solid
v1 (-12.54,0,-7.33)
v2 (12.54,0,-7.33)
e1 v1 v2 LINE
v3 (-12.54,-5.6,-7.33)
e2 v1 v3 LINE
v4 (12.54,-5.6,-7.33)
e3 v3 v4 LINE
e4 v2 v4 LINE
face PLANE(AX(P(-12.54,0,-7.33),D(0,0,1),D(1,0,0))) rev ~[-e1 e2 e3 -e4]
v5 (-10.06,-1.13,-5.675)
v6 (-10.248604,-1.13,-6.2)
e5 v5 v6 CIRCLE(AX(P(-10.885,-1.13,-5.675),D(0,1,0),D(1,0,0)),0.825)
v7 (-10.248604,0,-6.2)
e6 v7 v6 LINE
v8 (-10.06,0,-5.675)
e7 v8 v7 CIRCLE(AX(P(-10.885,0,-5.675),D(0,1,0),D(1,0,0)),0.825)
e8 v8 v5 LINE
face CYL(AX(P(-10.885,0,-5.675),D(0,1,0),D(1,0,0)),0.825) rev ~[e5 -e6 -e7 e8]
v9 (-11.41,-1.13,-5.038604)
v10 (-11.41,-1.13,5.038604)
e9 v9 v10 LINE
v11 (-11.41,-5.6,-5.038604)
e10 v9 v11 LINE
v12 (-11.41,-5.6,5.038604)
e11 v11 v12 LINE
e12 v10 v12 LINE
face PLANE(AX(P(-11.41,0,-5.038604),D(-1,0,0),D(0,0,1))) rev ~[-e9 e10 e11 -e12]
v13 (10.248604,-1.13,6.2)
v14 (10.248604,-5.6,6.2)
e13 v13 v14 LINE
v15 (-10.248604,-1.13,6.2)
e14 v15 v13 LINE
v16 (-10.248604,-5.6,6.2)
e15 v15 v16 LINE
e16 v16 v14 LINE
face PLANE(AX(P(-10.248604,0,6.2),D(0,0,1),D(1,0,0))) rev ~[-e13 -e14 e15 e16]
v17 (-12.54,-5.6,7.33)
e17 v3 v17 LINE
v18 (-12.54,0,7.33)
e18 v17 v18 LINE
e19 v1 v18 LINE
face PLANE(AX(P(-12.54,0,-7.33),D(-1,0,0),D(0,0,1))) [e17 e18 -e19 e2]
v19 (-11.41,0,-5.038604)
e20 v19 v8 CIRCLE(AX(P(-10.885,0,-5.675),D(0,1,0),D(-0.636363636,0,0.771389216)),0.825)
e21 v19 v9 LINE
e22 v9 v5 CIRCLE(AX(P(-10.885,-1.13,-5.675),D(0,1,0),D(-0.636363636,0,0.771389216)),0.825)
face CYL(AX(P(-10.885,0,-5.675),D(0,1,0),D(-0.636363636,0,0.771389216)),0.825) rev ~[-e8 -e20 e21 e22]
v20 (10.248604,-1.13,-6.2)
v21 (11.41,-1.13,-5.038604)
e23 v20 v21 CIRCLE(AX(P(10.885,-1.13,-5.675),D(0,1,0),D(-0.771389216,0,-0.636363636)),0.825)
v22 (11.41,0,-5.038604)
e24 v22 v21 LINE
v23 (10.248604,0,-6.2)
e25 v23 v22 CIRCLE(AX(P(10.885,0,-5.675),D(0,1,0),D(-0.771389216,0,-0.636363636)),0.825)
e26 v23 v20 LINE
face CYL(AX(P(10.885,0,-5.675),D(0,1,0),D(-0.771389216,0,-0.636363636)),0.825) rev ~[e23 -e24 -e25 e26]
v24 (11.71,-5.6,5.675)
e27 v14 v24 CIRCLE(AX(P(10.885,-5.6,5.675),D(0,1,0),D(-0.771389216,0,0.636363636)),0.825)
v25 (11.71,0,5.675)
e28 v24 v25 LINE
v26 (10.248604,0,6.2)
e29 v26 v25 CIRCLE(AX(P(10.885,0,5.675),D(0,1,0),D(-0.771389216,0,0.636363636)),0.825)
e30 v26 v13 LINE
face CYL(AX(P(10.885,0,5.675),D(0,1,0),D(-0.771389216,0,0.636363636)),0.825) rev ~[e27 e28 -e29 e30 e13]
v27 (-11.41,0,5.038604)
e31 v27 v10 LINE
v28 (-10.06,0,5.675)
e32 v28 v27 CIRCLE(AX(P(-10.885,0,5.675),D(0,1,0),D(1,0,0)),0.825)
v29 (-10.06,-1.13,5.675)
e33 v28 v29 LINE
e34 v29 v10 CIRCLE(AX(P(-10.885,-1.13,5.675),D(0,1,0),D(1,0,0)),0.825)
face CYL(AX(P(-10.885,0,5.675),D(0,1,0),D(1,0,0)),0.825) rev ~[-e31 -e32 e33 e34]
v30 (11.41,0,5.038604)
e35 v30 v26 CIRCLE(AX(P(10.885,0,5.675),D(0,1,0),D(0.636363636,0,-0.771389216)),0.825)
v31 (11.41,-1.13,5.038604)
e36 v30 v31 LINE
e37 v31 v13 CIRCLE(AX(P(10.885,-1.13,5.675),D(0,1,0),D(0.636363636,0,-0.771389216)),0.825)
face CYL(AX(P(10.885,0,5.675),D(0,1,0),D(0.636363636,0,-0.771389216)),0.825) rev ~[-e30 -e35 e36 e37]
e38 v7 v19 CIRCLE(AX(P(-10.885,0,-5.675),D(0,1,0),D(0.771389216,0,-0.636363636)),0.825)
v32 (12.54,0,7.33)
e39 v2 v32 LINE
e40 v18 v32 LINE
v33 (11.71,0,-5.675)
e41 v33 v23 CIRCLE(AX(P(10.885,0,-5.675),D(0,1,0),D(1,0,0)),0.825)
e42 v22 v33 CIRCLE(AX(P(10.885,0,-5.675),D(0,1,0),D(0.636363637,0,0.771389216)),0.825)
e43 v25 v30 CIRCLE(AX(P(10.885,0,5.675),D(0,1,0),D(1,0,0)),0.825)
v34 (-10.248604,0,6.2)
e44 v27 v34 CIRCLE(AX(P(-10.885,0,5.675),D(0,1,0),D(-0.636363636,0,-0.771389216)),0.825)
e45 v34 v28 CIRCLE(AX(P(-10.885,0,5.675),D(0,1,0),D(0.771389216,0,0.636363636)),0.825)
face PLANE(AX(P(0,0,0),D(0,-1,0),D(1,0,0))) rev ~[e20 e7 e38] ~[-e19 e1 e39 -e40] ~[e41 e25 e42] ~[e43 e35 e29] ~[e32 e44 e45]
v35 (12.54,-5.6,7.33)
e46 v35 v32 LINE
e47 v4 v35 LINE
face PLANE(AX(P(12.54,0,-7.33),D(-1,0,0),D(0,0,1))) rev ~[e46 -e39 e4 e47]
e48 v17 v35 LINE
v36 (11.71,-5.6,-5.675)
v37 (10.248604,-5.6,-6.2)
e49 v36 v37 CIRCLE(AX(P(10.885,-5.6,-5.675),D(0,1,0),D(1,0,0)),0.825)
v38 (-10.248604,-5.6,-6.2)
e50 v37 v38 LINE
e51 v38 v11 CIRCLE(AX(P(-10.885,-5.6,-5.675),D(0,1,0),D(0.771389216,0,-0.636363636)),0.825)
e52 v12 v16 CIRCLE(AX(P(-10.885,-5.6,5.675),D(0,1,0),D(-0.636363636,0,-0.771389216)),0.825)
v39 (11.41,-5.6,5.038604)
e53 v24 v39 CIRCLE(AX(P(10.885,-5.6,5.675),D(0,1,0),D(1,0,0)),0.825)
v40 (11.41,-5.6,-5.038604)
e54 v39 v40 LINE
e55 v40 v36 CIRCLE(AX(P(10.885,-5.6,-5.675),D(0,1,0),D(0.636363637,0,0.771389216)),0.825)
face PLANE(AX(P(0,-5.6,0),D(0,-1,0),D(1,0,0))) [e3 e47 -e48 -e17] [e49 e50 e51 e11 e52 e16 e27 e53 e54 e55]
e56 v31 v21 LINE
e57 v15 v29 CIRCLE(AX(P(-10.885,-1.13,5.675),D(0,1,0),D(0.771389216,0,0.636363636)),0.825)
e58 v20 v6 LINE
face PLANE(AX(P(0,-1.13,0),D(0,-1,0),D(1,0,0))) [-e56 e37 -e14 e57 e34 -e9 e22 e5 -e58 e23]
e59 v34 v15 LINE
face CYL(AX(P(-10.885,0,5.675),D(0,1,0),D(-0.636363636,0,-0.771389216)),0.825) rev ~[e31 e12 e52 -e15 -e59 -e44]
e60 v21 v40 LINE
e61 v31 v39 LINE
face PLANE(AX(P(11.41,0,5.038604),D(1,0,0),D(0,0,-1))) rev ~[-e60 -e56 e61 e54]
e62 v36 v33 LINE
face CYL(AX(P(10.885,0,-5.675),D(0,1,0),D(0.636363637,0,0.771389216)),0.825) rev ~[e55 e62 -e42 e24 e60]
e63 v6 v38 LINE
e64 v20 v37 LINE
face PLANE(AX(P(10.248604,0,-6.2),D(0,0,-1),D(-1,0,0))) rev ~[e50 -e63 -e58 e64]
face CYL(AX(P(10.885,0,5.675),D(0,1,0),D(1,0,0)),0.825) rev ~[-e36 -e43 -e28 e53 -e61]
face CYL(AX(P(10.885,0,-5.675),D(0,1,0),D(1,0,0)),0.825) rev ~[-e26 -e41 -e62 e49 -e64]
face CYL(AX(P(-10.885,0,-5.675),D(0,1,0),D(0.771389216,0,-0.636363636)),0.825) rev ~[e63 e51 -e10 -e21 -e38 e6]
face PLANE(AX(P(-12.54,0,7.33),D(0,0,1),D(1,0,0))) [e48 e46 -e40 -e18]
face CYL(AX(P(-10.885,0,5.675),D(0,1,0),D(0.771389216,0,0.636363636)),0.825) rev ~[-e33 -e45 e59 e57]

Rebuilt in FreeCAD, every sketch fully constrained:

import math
import FreeCAD as App
import Part
import Sketcher
from FreeCAD import Vector


def add_polygon(sketch, points):
    """Adds a closed chain of lines whose ends are joined by coincident constraints."""
    first, n = sketch.GeometryCount, len(points)
    for a, b in zip(points, points[1:] + points[:1]):
        sketch.addGeometry(Part.LineSegment(App.Vector(*a, 0), App.Vector(*b, 0)), False)
    for i in range(n):
        sketch.addConstraint(Sketcher.Constraint("Coincident", first + i, 2, first + (i + 1) % n, 1))

doc = App.newDocument("Part")
params = doc.addObject("Spreadsheet::Sheet", "Params")
for row, (alias, value) in enumerate([
    ("sketch1_width", "25.08 mm"),
    ("sketch1_height", "14.66 mm"),
    ("pad1_length", "5.6 mm"),
    ("sketch2_width", "25.08 mm"),
    ("sketch2_height", "14.66 mm"),
    ("pad2_length", "1.13 mm"),
], start=1):
    params.set(f"A{row}", alias)
    params.set(f"B{row}", "=" + value)
    params.setAlias(f"B{row}", alias)

body = doc.addObject("PartDesign::Body", "Body")

# Sketch on XZ plane
sketch1 = body.newObject("Sketcher::SketchObject", "Sketch")
sketch1.AttachmentSupport = (doc.getObject("XZ_Plane"), [""])
sketch1.MapMode = "FlatFace"
add_polygon(sketch1, [(-12.5, 7.3), (-12.5, -7.3), (12.5, -7.3), (12.5, 7.3)])  # lines 0-3
sketch1.addGeometry(Part.ArcOfCircle(Part.Circle(Vector(-10.9, 5.7, 0), Vector(0, 0, 1), 0.8), math.radians(40), math.radians(230)), False)  # 4
sketch1.addGeometry(Part.LineSegment(Vector(-10.2, 6.2, 0), Vector(10.2, 6.2, 0)), False)  # 5
sketch1.addGeometry(Part.ArcOfCircle(Part.Circle(Vector(10.9, 5.7, 0), Vector(0, 0, 1), 0.8), math.radians(0), math.radians(140)), False)  # 6
sketch1.addGeometry(Part.ArcOfCircle(Part.Circle(Vector(10.9, 5.7, 0), Vector(0, 0, 1), 0.8), math.radians(-50), math.radians(0)), False)  # 7
sketch1.addGeometry(Part.LineSegment(Vector(11.4, 5, 0), Vector(11.4, -5, 0)), False)  # 8
sketch1.addGeometry(Part.ArcOfCircle(Part.Circle(Vector(10.9, -5.7, 0), Vector(0, 0, 1), 0.8), math.radians(0), math.radians(50)), False)  # 9
sketch1.addGeometry(Part.ArcOfCircle(Part.Circle(Vector(10.9, -5.7, 0), Vector(0, 0, 1), 0.8), math.radians(-140), math.radians(0)), False)  # 10
sketch1.addGeometry(Part.LineSegment(Vector(10.2, -6.2, 0), Vector(-10.2, -6.2, 0)), False)  # 11
sketch1.addGeometry(Part.ArcOfCircle(Part.Circle(Vector(-10.9, -5.7, 0), Vector(0, 0, 1), 0.8), math.radians(130), math.radians(320)), False)  # 12
sketch1.addGeometry(Part.LineSegment(Vector(-11.4, -5, 0), Vector(-11.4, 5, 0)), False)  # 13
sketch1.addConstraint(Sketcher.Constraint("Coincident", 4, 1, 5, 1))
sketch1.addConstraint(Sketcher.Constraint("Coincident", 5, 2, 6, 2))
sketch1.addConstraint(Sketcher.Constraint("Tangent", 6, 1, 7, 2))
sketch1.addConstraint(Sketcher.Constraint("Coincident", 7, 1, 8, 1))
sketch1.addConstraint(Sketcher.Constraint("Coincident", 8, 2, 9, 2))
sketch1.addConstraint(Sketcher.Constraint("Tangent", 9, 1, 10, 2))
sketch1.addConstraint(Sketcher.Constraint("Coincident", 10, 1, 11, 1))
sketch1.addConstraint(Sketcher.Constraint("Coincident", 11, 2, 12, 2))
sketch1.addConstraint(Sketcher.Constraint("Coincident", 12, 1, 13, 1))
sketch1.addConstraint(Sketcher.Constraint("Coincident", 13, 2, 4, 2))
sketch1.addConstraint(Sketcher.Constraint("Vertical", 0))
sketch1.addConstraint(Sketcher.Constraint("Horizontal", 1))
sketch1.addConstraint(Sketcher.Constraint("Vertical", 2))
sketch1.addConstraint(Sketcher.Constraint("Horizontal", 3))
sketch1.addConstraint(Sketcher.Constraint("Horizontal", 5))
sketch1.addConstraint(Sketcher.Constraint("Vertical", 8))
sketch1.addConstraint(Sketcher.Constraint("Horizontal", 11))
sketch1.addConstraint(Sketcher.Constraint("Vertical", 13))
sketch1.addConstraint(Sketcher.Constraint("Equal", 4, 6))
sketch1.addConstraint(Sketcher.Constraint("Equal", 6, 7))
sketch1.addConstraint(Sketcher.Constraint("Equal", 7, 9))
sketch1.addConstraint(Sketcher.Constraint("Equal", 9, 10))
sketch1.addConstraint(Sketcher.Constraint("Equal", 10, 12))
sketch1.addConstraint(Sketcher.Constraint("Symmetric", 4, 3, 9, 3, -1, 1))
sketch1.addConstraint(Sketcher.Constraint("Symmetric", 6, 3, 12, 3, -1, 1))
sketch1.addConstraint(Sketcher.Constraint("Symmetric", 0, 2, 2, 2, -1, 1))
sketch1.addConstraint(Sketcher.Constraint("Symmetric", 4, 3, 6, 3, -2))
sketch1.addConstraint(Sketcher.Constraint("Horizontal", 7, 3, 6, 1))
sketch1.addConstraint(Sketcher.Constraint("Horizontal", 12, 3, 9, 1))
sketch1.addConstraint(Sketcher.Constraint("Horizontal", 8, 2, 12, 1))
sketch1.addConstraint(Sketcher.Constraint("Vertical", 5, 2, 10, 1))
sketch1.addConstraint(Sketcher.Constraint("Radius", 4, 0.825))
sketch1.addConstraint(Sketcher.Constraint("DistanceX", 1, 1, 1, 2, 25.08))
sketch1.addConstraint(Sketcher.Constraint("DistanceY", 0, 2, 0, 1, 14.66))
sketch1.addConstraint(Sketcher.Constraint("DistanceY", -1, 1, 4, 1, 6.2))
sketch1.addConstraint(Sketcher.Constraint("DistanceX", 7, 1, 6, 1, 0.3))
sketch1.addConstraint(Sketcher.Constraint("DistanceX", -1, 1, 6, 1, 11.71))
sketch1.addConstraint(Sketcher.Constraint("DistanceY", 9, 3, 6, 3, 11.35))
sketch1.setExpression("Constraints[36]", "Params.sketch1_width")
sketch1.setExpression("Constraints[37]", "Params.sketch1_height")
pad1 = body.newObject("PartDesign::Pad", "Pad")
pad1.Profile = sketch1
pad1.setExpression("Length", "Params.pad1_length")

# Sketch on XZ plane
sketch2 = body.newObject("Sketcher::SketchObject", "Sketch001")
sketch2.AttachmentSupport = (doc.getObject("XZ_Plane"), [""])
sketch2.MapMode = "FlatFace"
add_polygon(sketch2, [(-12.5, 7.3), (-12.5, -7.3), (12.5, -7.3), (12.5, 7.3)])  # lines 0-3
sketch2.addGeometry(Part.ArcOfCircle(Part.Circle(Vector(-10.9, 5.7, 0), Vector(0, 0, 1), 0.8), math.radians(40), math.radians(230)), False)  # 4
sketch2.addGeometry(Part.ArcOfCircle(Part.Circle(Vector(-10.9, 5.7, 0), Vector(0, 0, 1), 0.8), math.radians(0), math.radians(40)), False)  # 5
sketch2.addGeometry(Part.ArcOfCircle(Part.Circle(Vector(-10.9, 5.7, 0), Vector(0, 0, 1), 0.8), math.radians(-130), math.radians(0)), False)  # 6
sketch2.addGeometry(Part.ArcOfCircle(Part.Circle(Vector(-10.9, -5.7, 0), Vector(0, 0, 1), 0.8), math.radians(130), math.radians(320)), False)  # 7
sketch2.addGeometry(Part.ArcOfCircle(Part.Circle(Vector(-10.9, -5.7, 0), Vector(0, 0, 1), 0.8), math.radians(0), math.radians(130)), False)  # 8
sketch2.addGeometry(Part.ArcOfCircle(Part.Circle(Vector(-10.9, -5.7, 0), Vector(0, 0, 1), 0.8), math.radians(-40), math.radians(0)), False)  # 9
sketch2.addGeometry(Part.ArcOfCircle(Part.Circle(Vector(10.9, -5.7, 0), Vector(0, 0, 1), 0.8), math.radians(-140), math.radians(0)), False)  # 10
sketch2.addGeometry(Part.ArcOfCircle(Part.Circle(Vector(10.9, -5.7, 0), Vector(0, 0, 1), 0.8), math.radians(50), math.radians(220)), False)  # 11
sketch2.addGeometry(Part.ArcOfCircle(Part.Circle(Vector(10.9, -5.7, 0), Vector(0, 0, 1), 0.8), math.radians(0), math.radians(50)), False)  # 12
sketch2.addGeometry(Part.ArcOfCircle(Part.Circle(Vector(10.9, 5.7, 0), Vector(0, 0, 1), 0.8), math.radians(-50), math.radians(0)), False)  # 13
sketch2.addGeometry(Part.ArcOfCircle(Part.Circle(Vector(10.9, 5.7, 0), Vector(0, 0, 1), 0.8), math.radians(140), math.radians(310)), False)  # 14
sketch2.addGeometry(Part.ArcOfCircle(Part.Circle(Vector(10.9, 5.7, 0), Vector(0, 0, 1), 0.8), math.radians(0), math.radians(140)), False)  # 15
sketch2.addConstraint(Sketcher.Constraint("Tangent", 4, 1, 5, 2))
sketch2.addConstraint(Sketcher.Constraint("Tangent", 5, 1, 6, 2))
sketch2.addConstraint(Sketcher.Constraint("Tangent", 6, 1, 4, 2))
sketch2.addConstraint(Sketcher.Constraint("Tangent", 7, 1, 8, 2))
sketch2.addConstraint(Sketcher.Constraint("Tangent", 8, 1, 9, 2))
sketch2.addConstraint(Sketcher.Constraint("Tangent", 9, 1, 7, 2))
sketch2.addConstraint(Sketcher.Constraint("Tangent", 10, 1, 11, 2))
sketch2.addConstraint(Sketcher.Constraint("Tangent", 11, 1, 12, 2))
sketch2.addConstraint(Sketcher.Constraint("Tangent", 12, 1, 10, 2))
sketch2.addConstraint(Sketcher.Constraint("Tangent", 13, 1, 14, 2))
sketch2.addConstraint(Sketcher.Constraint("Tangent", 14, 1, 15, 2))
sketch2.addConstraint(Sketcher.Constraint("Tangent", 15, 1, 13, 2))
sketch2.addConstraint(Sketcher.Constraint("Vertical", 0))
sketch2.addConstraint(Sketcher.Constraint("Horizontal", 1))
sketch2.addConstraint(Sketcher.Constraint("Vertical", 2))
sketch2.addConstraint(Sketcher.Constraint("Horizontal", 3))
sketch2.addConstraint(Sketcher.Constraint("Equal", 6, 7))
sketch2.addConstraint(Sketcher.Constraint("Equal", 9, 10))
sketch2.addConstraint(Sketcher.Constraint("Equal", 12, 13))
sketch2.addConstraint(Sketcher.Constraint("Symmetric", 4, 3, 10, 3, -1, 1))
sketch2.addConstraint(Sketcher.Constraint("Symmetric", 7, 3, 13, 3, -1, 1))
sketch2.addConstraint(Sketcher.Constraint("Symmetric", 0, 2, 2, 2, -1, 1))
sketch2.addConstraint(Sketcher.Constraint("Symmetric", 7, 3, 10, 3, -2))
sketch2.addConstraint(Sketcher.Constraint("Horizontal", 15, 3, 5, 1))
sketch2.addConstraint(Sketcher.Constraint("Horizontal", 12, 3, 8, 1))
sketch2.addConstraint(Sketcher.Constraint("Horizontal", 9, 1, 10, 1))
sketch2.addConstraint(Sketcher.Constraint("Horizontal", 7, 1, 11, 1))
sketch2.addConstraint(Sketcher.Constraint("Horizontal", 8, 1, 12, 1))
sketch2.addConstraint(Sketcher.Constraint("Horizontal", 6, 1, 13, 1))
sketch2.addConstraint(Sketcher.Constraint("Horizontal", 4, 1, 14, 1))
sketch2.addConstraint(Sketcher.Constraint("Horizontal", 5, 1, 15, 1))
sketch2.addConstraint(Sketcher.Constraint("Vertical", 6, 1, 7, 1))
sketch2.addConstraint(Sketcher.Constraint("Vertical", 4, 1, 9, 1))
sketch2.addConstraint(Sketcher.Constraint("Radius", 4, 0.825))
sketch2.addConstraint(Sketcher.Constraint("DistanceX", 1, 1, 1, 2, 25.08))
sketch2.addConstraint(Sketcher.Constraint("DistanceY", 0, 2, 0, 1, 14.66))
sketch2.addConstraint(Sketcher.Constraint("DistanceY", -1, 1, 4, 1, 6.2))
sketch2.addConstraint(Sketcher.Constraint("DistanceX", 11, 1, 12, 1, 0.3))
sketch2.addConstraint(Sketcher.Constraint("DistanceX", 5, 1, -1, 1, 10.06))
sketch2.addConstraint(Sketcher.Constraint("DistanceY", 7, 3, 4, 3, 11.35))
sketch2.setExpression("Constraints[38]", "Params.sketch2_width")
sketch2.setExpression("Constraints[39]", "Params.sketch2_height")
pad2 = body.newObject("PartDesign::Pad", "Pad001")
pad2.Profile = sketch2
pad2.setExpression("Length", "Params.pad2_length")

doc.recompute()
